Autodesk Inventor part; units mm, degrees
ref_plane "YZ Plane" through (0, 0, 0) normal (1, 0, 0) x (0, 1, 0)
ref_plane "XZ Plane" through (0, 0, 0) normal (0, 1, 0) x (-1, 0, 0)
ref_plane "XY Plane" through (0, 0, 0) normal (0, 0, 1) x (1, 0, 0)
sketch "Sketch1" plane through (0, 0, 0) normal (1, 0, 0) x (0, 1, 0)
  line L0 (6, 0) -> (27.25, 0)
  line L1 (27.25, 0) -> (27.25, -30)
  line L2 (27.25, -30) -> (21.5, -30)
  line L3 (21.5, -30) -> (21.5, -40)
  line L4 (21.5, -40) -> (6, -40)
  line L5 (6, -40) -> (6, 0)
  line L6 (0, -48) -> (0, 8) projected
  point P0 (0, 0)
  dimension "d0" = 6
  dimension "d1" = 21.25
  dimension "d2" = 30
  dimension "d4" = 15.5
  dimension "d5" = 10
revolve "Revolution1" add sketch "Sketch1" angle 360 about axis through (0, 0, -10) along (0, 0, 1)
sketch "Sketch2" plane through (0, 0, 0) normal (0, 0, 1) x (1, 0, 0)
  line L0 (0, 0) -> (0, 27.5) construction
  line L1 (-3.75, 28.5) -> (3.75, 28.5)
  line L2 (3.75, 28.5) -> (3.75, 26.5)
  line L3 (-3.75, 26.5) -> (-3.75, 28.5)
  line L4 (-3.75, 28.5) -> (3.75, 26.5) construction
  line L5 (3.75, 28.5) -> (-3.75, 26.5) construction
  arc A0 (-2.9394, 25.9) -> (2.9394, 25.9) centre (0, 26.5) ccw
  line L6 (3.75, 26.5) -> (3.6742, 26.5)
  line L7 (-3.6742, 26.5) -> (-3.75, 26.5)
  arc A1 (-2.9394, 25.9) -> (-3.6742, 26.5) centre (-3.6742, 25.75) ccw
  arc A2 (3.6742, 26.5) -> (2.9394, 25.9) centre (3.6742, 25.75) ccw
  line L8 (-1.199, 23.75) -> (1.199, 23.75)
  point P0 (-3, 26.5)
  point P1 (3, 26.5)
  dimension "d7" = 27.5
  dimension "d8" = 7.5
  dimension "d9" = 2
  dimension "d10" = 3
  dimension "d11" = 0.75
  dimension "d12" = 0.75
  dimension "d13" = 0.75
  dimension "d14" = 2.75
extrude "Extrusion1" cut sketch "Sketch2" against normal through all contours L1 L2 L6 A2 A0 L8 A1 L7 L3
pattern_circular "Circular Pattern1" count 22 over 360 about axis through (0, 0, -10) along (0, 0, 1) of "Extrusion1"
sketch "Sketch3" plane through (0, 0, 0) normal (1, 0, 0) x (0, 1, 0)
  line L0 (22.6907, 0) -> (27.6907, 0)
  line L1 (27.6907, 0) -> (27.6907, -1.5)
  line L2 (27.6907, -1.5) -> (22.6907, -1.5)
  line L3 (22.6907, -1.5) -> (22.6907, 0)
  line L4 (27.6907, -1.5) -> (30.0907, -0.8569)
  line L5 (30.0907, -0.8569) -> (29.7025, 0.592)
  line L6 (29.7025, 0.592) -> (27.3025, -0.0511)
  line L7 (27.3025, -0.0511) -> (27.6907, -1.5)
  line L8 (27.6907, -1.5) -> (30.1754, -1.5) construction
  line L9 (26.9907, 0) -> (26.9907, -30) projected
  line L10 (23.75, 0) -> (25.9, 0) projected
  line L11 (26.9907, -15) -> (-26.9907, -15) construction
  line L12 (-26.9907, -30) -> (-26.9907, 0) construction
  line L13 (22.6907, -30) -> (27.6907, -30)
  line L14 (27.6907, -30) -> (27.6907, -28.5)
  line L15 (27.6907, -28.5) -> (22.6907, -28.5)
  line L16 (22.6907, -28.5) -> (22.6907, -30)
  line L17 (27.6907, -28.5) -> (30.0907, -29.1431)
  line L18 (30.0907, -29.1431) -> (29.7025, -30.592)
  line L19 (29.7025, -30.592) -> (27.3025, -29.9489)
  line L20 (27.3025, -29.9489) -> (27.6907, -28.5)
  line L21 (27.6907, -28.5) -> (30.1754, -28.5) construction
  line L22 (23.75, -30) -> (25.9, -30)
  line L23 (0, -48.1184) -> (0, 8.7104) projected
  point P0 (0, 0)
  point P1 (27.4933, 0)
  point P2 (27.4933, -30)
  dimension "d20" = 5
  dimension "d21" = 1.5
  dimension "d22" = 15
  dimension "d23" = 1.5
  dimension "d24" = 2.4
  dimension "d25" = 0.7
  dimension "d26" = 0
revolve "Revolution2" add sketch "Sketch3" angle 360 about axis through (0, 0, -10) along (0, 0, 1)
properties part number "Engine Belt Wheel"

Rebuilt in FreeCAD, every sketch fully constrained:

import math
import FreeCAD as App
import Part
import Sketcher
Q = App.Units.Quantity

doc = App.newDocument("Part")
params = doc.addObject("Spreadsheet::Sheet", "Params")
for row, (alias, value) in enumerate([
    ("sketch1_height", "10 mm"),
    ("sketch1_height2", "30 mm"),
    ("sketch1_width", "15.5 mm"),
    ("sketch1_width2", "21.25 mm"),
    ("revolution_angle", "360 deg"),
    ("sketch2_radius", "3 mm"),
    ("sketch2_height", "2 mm"),
    ("sketch2_radius2", "0.75 mm"),
    ("sketch2_width", "7.5 mm"),
    ("sketch3_width", "5 mm"),
    ("sketch3_height", "1.5 mm"),
    ("sketch3_length", "1.5 mm"),
    ("revolution2_angle", "360 deg"),
], start=1):
    params.set(f"A{row}", alias)
    params.set(f"B{row}", "=" + value)
    params.setAlias(f"B{row}", alias)

body = doc.addObject("PartDesign::Body", "Body")

# Sketch on YZ plane
sketch1 = doc.addObject("Sketcher::SketchObject", "Sketch")
body.addObject(sketch1)
sketch1.AttachmentSupport = (doc.YZ_Plane, [""])
sketch1.MapMode = "FlatFace"
sketch1.addGeometry([
    Part.LineSegment(App.Vector(27.25, 0, 0), App.Vector(6, 0, 0)),  # 0
    Part.LineSegment(App.Vector(6, 0, 0), App.Vector(6, -40, 0)),  # 1
    Part.LineSegment(App.Vector(6, -40, 0), App.Vector(21.5, -40, 0)),  # 2
    Part.LineSegment(App.Vector(21.5, -40, 0), App.Vector(21.5, -30, 0)),  # 3
    Part.LineSegment(App.Vector(21.5, -30, 0), App.Vector(27.25, -30, 0)),  # 4
    Part.LineSegment(App.Vector(27.25, -30, 0), App.Vector(27.25, 0, 0)),  # 5
], False)
sketch1.addConstraint([
    Sketcher.Constraint("Coincident", 0, 2, 1, 1),
    Sketcher.Constraint("Coincident", 1, 2, 2, 1),
    Sketcher.Constraint("Coincident", 2, 2, 3, 1),
    Sketcher.Constraint("Coincident", 3, 2, 4, 1),
    Sketcher.Constraint("Coincident", 4, 2, 5, 1),
    Sketcher.Constraint("Coincident", 5, 2, 0, 1),
    Sketcher.Constraint("Horizontal", 0),
    Sketcher.Constraint("Vertical", 1),
    Sketcher.Constraint("Horizontal", 2),
    Sketcher.Constraint("Vertical", 3),
    Sketcher.Constraint("Horizontal", 4),
    Sketcher.Constraint("Vertical", 5),
    Sketcher.Constraint("PointOnObject", 0, 2, -1),
    Sketcher.Constraint("DistanceY", 3, 1, 3, 2, Q("10 mm")),
    Sketcher.Constraint("DistanceY", 5, 1, 5, 2, Q("30 mm")),
    Sketcher.Constraint("DistanceX", 2, 1, 2, 2, Q("15.5 mm")),
    Sketcher.Constraint("DistanceX", -1, 1, 0, 2, Q("6 mm")),
    Sketcher.Constraint("DistanceX", 0, 2, 0, 1, Q("21.25 mm")),
])
sketch1.setExpression("Constraints[13]", "Params.sketch1_height")
sketch1.setExpression("Constraints[14]", "Params.sketch1_height2")
sketch1.setExpression("Constraints[15]", "Params.sketch1_width")
sketch1.setExpression("Constraints[17]", "Params.sketch1_width2")
revolution = doc.addObject("PartDesign::Revolution", "Revolution")
body.addObject(revolution)
revolution.Profile = sketch1
revolution.ReferenceAxis = (sketch1, ["V_Axis"])
revolution.setExpression("Angle", "Params.revolution_angle")

# Sketch on XY plane
sketch2 = doc.addObject("Sketcher::SketchObject", "Sketch001")
body.addObject(sketch2)
sketch2.AttachmentSupport = (doc.XY_Plane, [""])
sketch2.MapMode = "FlatFace"
sketch2.addGeometry([
    Part.LineSegment(App.Vector(3.75, 28.5, 0), App.Vector(-3.75, 28.5, 0)),  # 0
    Part.LineSegment(App.Vector(-3.75, 28.5, 0), App.Vector(-3.75, 26.5, 0)),  # 1
    Part.LineSegment(App.Vector(-3.75, 26.5, 0), App.Vector(-3.6742, 26.5, 0)),  # 2
    Part.ArcOfCircle(Part.Circle(App.Vector(-3.6742, 25.75, 0), App.Vector(0, 0, 1), 0.749954), math.radians(11.537676), math.radians(90)),  # 3
    Part.ArcOfCircle(Part.Circle(App.Vector(0, 26.5, 0), App.Vector(0, 0, 1), 3.000012), math.radians(-168.463088), math.radians(-113.557202)),  # 4
    Part.LineSegment(App.Vector(-1.199, 23.75, 0), App.Vector(1.199, 23.75, 0)),  # 5
    Part.ArcOfCircle(Part.Circle(App.Vector(0, 26.5, 0), App.Vector(0, 0, 1), 3.000012), math.radians(-66.442798), math.radians(-11.536912)),  # 6
    Part.ArcOfCircle(Part.Circle(App.Vector(3.6742, 25.75, 0), App.Vector(0, 0, 1), 0.75), math.radians(90), math.radians(168.462324)),  # 7
    Part.LineSegment(App.Vector(3.6742, 26.5, 0), App.Vector(3.75, 26.5, 0)),  # 8
    Part.LineSegment(App.Vector(3.75, 26.5, 0), App.Vector(3.75, 28.5, 0)),  # 9
], False)
sketch2.addConstraint([
    Sketcher.Constraint("Coincident", 0, 2, 1, 1),
    Sketcher.Constraint("Coincident", 1, 2, 2, 1),
    Sketcher.Constraint("Tangent", 2, 2, 3, 2),
    Sketcher.Constraint("Tangent", 3, 1, 4, 1),
    Sketcher.Constraint("Coincident", 4, 2, 5, 1),
    Sketcher.Constraint("Coincident", 5, 2, 6, 1),
    Sketcher.Constraint("Tangent", 6, 2, 7, 2),
    Sketcher.Constraint("Tangent", 7, 1, 8, 1),
    Sketcher.Constraint("Coincident", 8, 2, 9, 1),
    Sketcher.Constraint("Coincident", 9, 2, 0, 1),
    Sketcher.Constraint("Horizontal", 0),
    Sketcher.Constraint("Vertical", 1),
    Sketcher.Constraint("Horizontal", 2),
    Sketcher.Constraint("Horizontal", 5),
    Sketcher.Constraint("Horizontal", 8),
    Sketcher.Constraint("Vertical", 9),
    Sketcher.Constraint("Coincident", 6, 3, 4, 3),
    Sketcher.Constraint("Equal", 4, 6),
    Sketcher.Constraint("Equal", 3, 7),
    Sketcher.Constraint("Symmetric", 3, 3, 7, 3, -2),
    Sketcher.Constraint("Horizontal", 6, 3, 1, 2),
    Sketcher.Constraint("Equal", 2, 8),
    Sketcher.Constraint("Radius", 4, Q("3 mm")),
    Sketcher.Constraint("DistanceY", 1, 2, 1, 1, Q("2 mm")),
    Sketcher.Constraint("Radius", 3, Q("0.75 mm")),
    Sketcher.Constraint("DistanceX", 0, 2, 0, 1, Q("7.5 mm")),
    Sketcher.Constraint("DistanceY", 4, 2, 3, 3, Q("2 mm")),
    Sketcher.Constraint("DistanceY", -1, 1, 4, 3, Q("26.5 mm")),
])
sketch2.setExpression("Constraints[22]", "Params.sketch2_radius")
sketch2.setExpression("Constraints[23]", "Params.sketch2_height")
sketch2.setExpression("Constraints[24]", "Params.sketch2_radius2")
sketch2.setExpression("Constraints[25]", "Params.sketch2_width")
pocket1 = doc.addObject("PartDesign::Pocket", "Pocket")
body.addObject(pocket1)
pocket1.Profile = sketch2
pocket1.Type = "ThroughAll"
doc.recompute()

polarpattern = doc.addObject("PartDesign::PolarPattern", "PolarPattern")
body.addObject(polarpattern)
polarpattern.Originals = [pocket1]
polarpattern.Axis = (doc.Z_Axis, [""])
polarpattern.Angle = 360
polarpattern.Occurrences = 22
body.Tip = polarpattern

# Sketch on YZ plane
sketch3 = doc.addObject("Sketcher::SketchObject", "Sketch002")
body.addObject(sketch3)
sketch3.AttachmentSupport = (doc.YZ_Plane, [""])
sketch3.MapMode = "FlatFace"
sketch3.addGeometry([
    Part.LineSegment(App.Vector(27.6907, -28.5, 0), App.Vector(22.6907, -28.5, 0)),  # 0
    Part.LineSegment(App.Vector(22.6907, -28.5, 0), App.Vector(22.6907, -30, 0)),  # 1
    Part.LineSegment(App.Vector(22.6907, -30, 0), App.Vector(27.493201, -30, 0)),  # 2
    Part.LineSegment(App.Vector(27.493201, -30, 0), App.Vector(29.7025, -30.592, 0)),  # 3
    Part.LineSegment(App.Vector(29.7025, -30.592, 0), App.Vector(30.0907, -29.1431, 0)),  # 4
    Part.LineSegment(App.Vector(30.0907, -29.1431, 0), App.Vector(27.6907, -28.5, 0)),  # 5
    Part.LineSegment(App.Vector(22.6907, 0, 0), App.Vector(22.6907, -1.5, 0)),  # 6
    Part.LineSegment(App.Vector(22.6907, -1.5, 0), App.Vector(27.6907, -1.5, 0)),  # 7
    Part.LineSegment(App.Vector(27.6907, -1.5, 0), App.Vector(30.0907, -0.8569, 0)),  # 8
    Part.LineSegment(App.Vector(30.0907, -0.8569, 0), App.Vector(29.7025, 0.592, 0)),  # 9
    Part.LineSegment(App.Vector(29.7025, 0.592, 0), App.Vector(27.493201, 0, 0)),  # 10
    Part.LineSegment(App.Vector(27.493201, 0, 0), App.Vector(22.6907, 0, 0)),  # 11
], False)
sketch3.addConstraint([
    Sketcher.Constraint("Coincident", 0, 2, 1, 1),
    Sketcher.Constraint("Coincident", 1, 2, 2, 1),
    Sketcher.Constraint("Coincident", 2, 2, 3, 1),
    Sketcher.Constraint("Coincident", 3, 2, 4, 1),
    Sketcher.Constraint("Coincident", 4, 2, 5, 1),
    Sketcher.Constraint("Coincident", 5, 2, 0, 1),
    Sketcher.Constraint("Coincident", 6, 2, 7, 1),
    Sketcher.Constraint("Coincident", 7, 2, 8, 1),
    Sketcher.Constraint("Coincident", 8, 2, 9, 1),
    Sketcher.Constraint("Coincident", 9, 2, 10, 1),
    Sketcher.Constraint("Coincident", 10, 2, 11, 1),
    Sketcher.Constraint("Coincident", 11, 2, 6, 1),
    Sketcher.Constraint("Horizontal", 0),
    Sketcher.Constraint("Vertical", 1),
    Sketcher.Constraint("Horizontal", 2),
    Sketcher.Constraint("Vertical", 6),
    Sketcher.Constraint("Horizontal", 7),
    Sketcher.Constraint("Horizontal", 11),
    Sketcher.Constraint("PointOnObject", 10, 2, -1),
    Sketcher.Constraint("Perpendicular", 3, 4),
    Sketcher.Constraint("Perpendicular", 4, 5),
    Sketcher.Constraint("Perpendicular", 8, 9),
    Sketcher.Constraint("Perpendicular", 9, 10),
    Sketcher.Constraint("Vertical", 1, 2, 6, 2),
    Sketcher.Constraint("Vertical", 5, 2, 7, 2),
    Sketcher.Constraint("Vertical", 4, 2, 8, 2),
    Sketcher.Constraint("Vertical", 3, 2, 9, 2),
    Sketcher.Constraint("Vertical", 2, 2, 10, 2),
    Sketcher.Constraint("Equal", 1, 6),
    Sketcher.Constraint("DistanceX", 0, 2, 0, 1, Q("5 mm")),
    Sketcher.Constraint("Angle", 3, Q("-15.0005 deg")),
    Sketcher.Constraint("DistanceY", 1, 2, 1, 1, Q("1.5 mm")),
    Sketcher.Constraint("Distance", 4, Q("1.5 mm")),
    Sketcher.Constraint("DistanceX", 5, 2, 4, 2, Q("2.4 mm")),
    Sketcher.Constraint("DistanceY", 1, 2, -1, 1, Q("30 mm")),
    Sketcher.Constraint("DistanceX", -1, 1, 0, 2, Q("22.6907 mm")),
])
sketch3.setExpression("Constraints[29]", "Params.sketch3_width")
sketch3.setExpression("Constraints[31]", "Params.sketch3_height")
sketch3.setExpression("Constraints[32]", "Params.sketch3_length")
revolution2 = doc.addObject("PartDesign::Revolution", "Revolution001")
body.addObject(revolution2)
revolution2.Profile = sketch3
revolution2.ReferenceAxis = (sketch3, ["V_Axis"])
revolution2.setExpression("Angle", "Params.revolution2_angle")

doc.recompute()
